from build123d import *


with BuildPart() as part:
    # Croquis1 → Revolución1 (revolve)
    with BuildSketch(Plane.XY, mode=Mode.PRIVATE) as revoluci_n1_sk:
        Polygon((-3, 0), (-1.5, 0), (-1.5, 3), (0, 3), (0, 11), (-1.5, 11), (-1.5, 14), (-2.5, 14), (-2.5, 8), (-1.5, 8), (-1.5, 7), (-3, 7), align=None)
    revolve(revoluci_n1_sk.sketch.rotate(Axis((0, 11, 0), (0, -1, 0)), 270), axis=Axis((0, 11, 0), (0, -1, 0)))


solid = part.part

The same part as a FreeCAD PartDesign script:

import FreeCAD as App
import Part
import Sketcher


def add_polygon(sketch, points):
    """Adds a closed chain of lines whose ends are joined by coincident constraints."""
    first, n = sketch.GeometryCount, len(points)
    for a, b in zip(points, points[1:] + points[:1]):
        sketch.addGeometry(Part.LineSegment(App.Vector(*a, 0), App.Vector(*b, 0)), False)
    for i in range(n):
        sketch.addConstraint(Sketcher.Constraint("Coincident", first + i, 2, first + (i + 1) % n, 1))

doc = App.newDocument("Part")
body = doc.addObject("PartDesign::Body", "Body")

# Sketch on XY plane
sketch1 = body.newObject("Sketcher::SketchObject", "Sketch")
sketch1.AttachmentSupport = (doc.getObject("XY_Plane"), [""])
sketch1.MapMode = "FlatFace"
add_polygon(sketch1, [(-3, 0), (-1.5, 0), (-1.5, 3), (0, 3), (0, 11), (-1.5, 11), (-1.5, 14), (-2.5, 14), (-2.5, 8), (-1.5, 8), (-1.5, 7), (-3, 7)])  # lines 0-11
sketch1.addConstraint(Sketcher.Constraint("Horizontal", 0))
sketch1.addConstraint(Sketcher.Constraint("Vertical", 1))
sketch1.addConstraint(Sketcher.Constraint("Horizontal", 2))
sketch1.addConstraint(Sketcher.Constraint("Vertical", 3))
sketch1.addConstraint(Sketcher.Constraint("Horizontal", 4))
sketch1.addConstraint(Sketcher.Constraint("Vertical", 5))
sketch1.addConstraint(Sketcher.Constraint("Horizontal", 6))
sketch1.addConstraint(Sketcher.Constraint("Vertical", 7))
sketch1.addConstraint(Sketcher.Constraint("Horizontal", 8))
sketch1.addConstraint(Sketcher.Constraint("Vertical", 9))
sketch1.addConstraint(Sketcher.Constraint("Horizontal", 10))
sketch1.addConstraint(Sketcher.Constraint("Vertical", 11))
sketch1.addConstraint(Sketcher.Constraint("PointOnObject", 0, 2, -1))
sketch1.addConstraint(Sketcher.Constraint("PointOnObject", 2, 2, -2))
sketch1.addConstraint(Sketcher.Constraint("Vertical", 1, 2, 4, 2))
sketch1.addConstraint(Sketcher.Constraint("Vertical", 5, 2, 8, 2))
sketch1.addConstraint(Sketcher.Constraint("Equal", 0, 2))
sketch1.addConstraint(Sketcher.Constraint("Equal", 1, 5))
sketch1.addConstraint(Sketcher.Constraint("Equal", 8, 9))
sketch1.addConstraint(Sketcher.Constraint("DistanceX", 6, 2, 6, 1, 1.0))
sketch1.addConstraint(Sketcher.Constraint("DistanceY", 1, 1, 1, 2, 3.0))
sketch1.addConstraint(Sketcher.Constraint("DistanceY", 3, 1, 3, 2, 8.0))
sketch1.addConstraint(Sketcher.Constraint("DistanceY", 7, 2, 7, 1, 6.0))
sketch1.addConstraint(Sketcher.Constraint("DistanceX", 0, 1, 0, 2, 1.5))
revolution = body.newObject("PartDesign::Revolution", "Revolution")
revolution.Profile = sketch1
revolution.ReferenceAxis = (sketch1, ["V_Axis"])
revolution.Angle = 360

doc.recompute()
